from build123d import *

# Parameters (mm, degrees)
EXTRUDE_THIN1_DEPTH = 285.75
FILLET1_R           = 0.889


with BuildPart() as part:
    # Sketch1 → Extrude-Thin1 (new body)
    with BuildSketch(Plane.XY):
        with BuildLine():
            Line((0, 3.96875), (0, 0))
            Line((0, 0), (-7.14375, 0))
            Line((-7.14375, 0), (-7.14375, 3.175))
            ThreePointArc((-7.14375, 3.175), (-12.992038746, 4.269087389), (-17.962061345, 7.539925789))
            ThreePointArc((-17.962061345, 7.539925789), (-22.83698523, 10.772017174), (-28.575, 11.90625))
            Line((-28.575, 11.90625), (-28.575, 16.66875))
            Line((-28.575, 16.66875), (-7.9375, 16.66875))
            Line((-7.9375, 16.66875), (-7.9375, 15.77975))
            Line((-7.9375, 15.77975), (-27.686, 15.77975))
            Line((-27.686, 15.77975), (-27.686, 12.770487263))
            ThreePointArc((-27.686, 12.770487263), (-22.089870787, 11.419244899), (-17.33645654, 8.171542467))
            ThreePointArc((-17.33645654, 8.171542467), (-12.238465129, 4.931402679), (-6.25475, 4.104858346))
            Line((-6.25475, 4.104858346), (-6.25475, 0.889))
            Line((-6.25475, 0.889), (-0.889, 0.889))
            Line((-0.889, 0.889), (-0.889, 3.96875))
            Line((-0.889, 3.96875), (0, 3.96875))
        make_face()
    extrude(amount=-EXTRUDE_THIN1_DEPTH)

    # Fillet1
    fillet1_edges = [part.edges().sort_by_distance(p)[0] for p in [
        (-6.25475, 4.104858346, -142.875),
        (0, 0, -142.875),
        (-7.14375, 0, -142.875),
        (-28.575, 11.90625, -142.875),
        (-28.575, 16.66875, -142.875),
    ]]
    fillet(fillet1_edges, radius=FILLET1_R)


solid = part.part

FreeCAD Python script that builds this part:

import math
import FreeCAD as App
import Part
import Sketcher

V = App.Vector
Q = App.Units.Quantity


def edges_at(feature, points):
    """Names of the edges that pass closest to the given points."""
    edges = feature.Shape.Edges
    near = lambda p: min(range(len(edges)), key=lambda i: edges[i].distToShape(Part.Vertex(*p))[0])
    return sorted({f"Edge{near(p) + 1}" for p in points})

doc = App.newDocument("Part")
params = doc.addObject("Spreadsheet::Sheet", "Params")
for row, (alias, value) in enumerate([
    ("sketch1_radius", "0.59375 in"),
    ("sketch1_width", "0.035 in"),
    ("sketch1_width2", "0.8125 in"),
    ("sketch1_width3", "0.28125 in"),
    ("sketch1_height", "0.15625 in"),
    ("pad1_length", "11.25 in"),
    ("fillet_radius", "0.035 in"),
], start=1):
    params.set(f"A{row}", alias)
    params.set(f"B{row}", "=" + value)
    params.setAlias(f"B{row}", alias)

body = doc.addObject("PartDesign::Body", "Body")

# Sketch on XY plane
sketch1 = body.newObject("Sketcher::SketchObject", "Sketch")
sketch1.AttachmentSupport = (doc.getObject("XY_Plane"), [""])
sketch1.MapMode = "FlatFace"
sketch1.addGeometry(Part.LineSegment(V(0, 0, 0), V(0, 4, 0)), False)
sketch1.addGeometry(Part.LineSegment(V(0, 4, 0), V(-0.9, 4, 0)), False)
sketch1.addGeometry(Part.LineSegment(V(-0.9, 4, 0), V(-0.9, 0.9, 0)), False)
sketch1.addGeometry(Part.LineSegment(V(-0.9, 0.9, 0), V(-6.3, 0.9, 0)), False)
sketch1.addGeometry(Part.LineSegment(V(-6.3, 0.9, 0), V(-6.3, 4.1, 0)), False)
sketch1.addGeometry(Part.ArcOfCircle(Part.Circle(V(-7.3, 18.3, 0), V(0, 0, 1), 14.2), math.radians(-135), math.radians(-86)), False)
sketch1.addGeometry(Part.ArcOfCircle(Part.Circle(V(-28.6, -3.2, 0), V(0, 0, 1), 16), math.radians(45), math.radians(87)), False)
sketch1.addGeometry(Part.LineSegment(V(-27.7, 12.8, 0), V(-27.7, 15.8, 0)), False)
sketch1.addGeometry(Part.LineSegment(V(-27.7, 15.8, 0), V(-7.9, 15.8, 0)), False)
sketch1.addGeometry(Part.LineSegment(V(-7.9, 15.8, 0), V(-7.9, 16.7, 0)), False)
sketch1.addGeometry(Part.LineSegment(V(-7.9, 16.7, 0), V(-28.6, 16.7, 0)), False)
sketch1.addGeometry(Part.LineSegment(V(-28.6, 16.7, 0), V(-28.6, 11.9, 0)), False)
sketch1.addGeometry(Part.ArcOfCircle(Part.Circle(V(-28.6, -3.2, 0), V(0, 0, 1), 15.1), math.radians(45), math.radians(90)), False)
sketch1.addGeometry(Part.ArcOfCircle(Part.Circle(V(-7.3, 18.3, 0), V(0, 0, 1), 15.1), math.radians(-135), math.radians(-89)), False)
sketch1.addGeometry(Part.LineSegment(V(-7.1, 3.2, 0), V(-7.1, 0, 0)), False)
sketch1.addGeometry(Part.LineSegment(V(-7.1, 0, 0), V(0, 0, 0)), False)
sketch1.addConstraint(Sketcher.Constraint("Coincident", 0, 2, 1, 1))
sketch1.addConstraint(Sketcher.Constraint("Coincident", 1, 2, 2, 1))
sketch1.addConstraint(Sketcher.Constraint("Coincident", 2, 2, 3, 1))
sketch1.addConstraint(Sketcher.Constraint("Coincident", 3, 2, 4, 1))
sketch1.addConstraint(Sketcher.Constraint("Coincident", 4, 2, 5, 2))
sketch1.addConstraint(Sketcher.Constraint("Tangent", 5, 1, 6, 1))
sketch1.addConstraint(Sketcher.Constraint("Coincident", 6, 2, 7, 1))
sketch1.addConstraint(Sketcher.Constraint("Coincident", 7, 2, 8, 1))
sketch1.addConstraint(Sketcher.Constraint("Coincident", 8, 2, 9, 1))
sketch1.addConstraint(Sketcher.Constraint("Coincident", 9, 2, 10, 1))
sketch1.addConstraint(Sketcher.Constraint("Coincident", 10, 2, 11, 1))
sketch1.addConstraint(Sketcher.Constraint("Coincident", 11, 2, 12, 2))
sketch1.addConstraint(Sketcher.Constraint("Tangent", 12, 1, 13, 1))
sketch1.addConstraint(Sketcher.Constraint("Coincident", 13, 2, 14, 1))
sketch1.addConstraint(Sketcher.Constraint("Coincident", 14, 2, 15, 1))
sketch1.addConstraint(Sketcher.Constraint("Coincident", 15, 2, 0, 1))
sketch1.addConstraint(Sketcher.Constraint("Vertical", 0))
sketch1.addConstraint(Sketcher.Constraint("Horizontal", 1))
sketch1.addConstraint(Sketcher.Constraint("Vertical", 2))
sketch1.addConstraint(Sketcher.Constraint("Horizontal", 3))
sketch1.addConstraint(Sketcher.Constraint("Vertical", 4))
sketch1.addConstraint(Sketcher.Constraint("Vertical", 7))
sketch1.addConstraint(Sketcher.Constraint("Horizontal", 8))
sketch1.addConstraint(Sketcher.Constraint("Vertical", 9))
sketch1.addConstraint(Sketcher.Constraint("Horizontal", 10))
sketch1.addConstraint(Sketcher.Constraint("Vertical", 11))
sketch1.addConstraint(Sketcher.Constraint("Vertical", 14))
sketch1.addConstraint(Sketcher.Constraint("Horizontal", 15))
sketch1.addConstraint(Sketcher.Constraint("Coincident", 15, 2, -1, 1))
sketch1.addConstraint(Sketcher.Constraint("Coincident", 12, 3, 6, 3))
sketch1.addConstraint(Sketcher.Constraint("Coincident", 13, 3, 5, 3))
sketch1.addConstraint(Sketcher.Constraint("Equal", 12, 13))
sketch1.addConstraint(Sketcher.Constraint("Vertical", 12, 3, 10, 2))
sketch1.addConstraint(Sketcher.Constraint("Equal", 1, 9))
sketch1.addConstraint(Sketcher.Constraint("Radius", 12, Q("0.59375 in")))
sketch1.addConstraint(Sketcher.Constraint("DistanceX", 1, 2, 1, 1, Q("0.035 in")))
sketch1.addConstraint(Sketcher.Constraint("DistanceX", 10, 2, 10, 1, Q("0.8125 in")))
sketch1.addConstraint(Sketcher.Constraint("DistanceX", 15, 1, 15, 2, Q("0.28125 in")))
sketch1.addConstraint(Sketcher.Constraint("DistanceY", 0, 1, 0, 2, Q("0.15625 in")))
sketch1.addConstraint(Sketcher.Constraint("DistanceY", 11, 2, 11, 1, Q("0.1875 in")))
sketch1.addConstraint(Sketcher.Constraint("DistanceY", 14, 2, 14, 1, Q("0.125 in")))
sketch1.addConstraint(Sketcher.Constraint("DistanceX", 6, 2, -1, 1, Q("1.09 in")))
sketch1.addConstraint(Sketcher.Constraint("DistanceX", 6, 3, 1, 2, Q("1.09 in")))
sketch1.addConstraint(Sketcher.Constraint("DistanceY", 6, 3, 2, 2, Q("0.16 in")))
sketch1.addConstraint(Sketcher.Constraint("DistanceY", 3, 2, 13, 2, Q("0.09 in")))
sketch1.addConstraint(Sketcher.Constraint("Radius", 5, Q("14.19225 mm")))
sketch1.addConstraint(Sketcher.Constraint("DistanceX", 13, 2, 4, 2, Q("0.035 in")))
sketch1.setExpression("Constraints[34]", "Params.sketch1_radius")
sketch1.setExpression("Constraints[35]", "Params.sketch1_width")
sketch1.setExpression("Constraints[36]", "Params.sketch1_width2")
sketch1.setExpression("Constraints[37]", "Params.sketch1_width3")
sketch1.setExpression("Constraints[38]", "Params.sketch1_height")
pad1 = body.newObject("PartDesign::Pad", "Pad")
pad1.Profile = sketch1
pad1.setExpression("Length", "Params.pad1_length")
pad1.Reversed = True
doc.recompute()

fillet = body.newObject("PartDesign::Fillet", "Fillet")
fillet.Base = (pad1, edges_at(pad1, [
    (-6.255, 4.105, -142.875),
    (0, 0, -142.875),
    (-7.144, 0, -142.875),
    (-28.575, 11.906, -142.875),
    (-28.575, 16.669, -142.875),
]))
fillet.setExpression("Radius", "Params.fillet_radius")

doc.recompute()
